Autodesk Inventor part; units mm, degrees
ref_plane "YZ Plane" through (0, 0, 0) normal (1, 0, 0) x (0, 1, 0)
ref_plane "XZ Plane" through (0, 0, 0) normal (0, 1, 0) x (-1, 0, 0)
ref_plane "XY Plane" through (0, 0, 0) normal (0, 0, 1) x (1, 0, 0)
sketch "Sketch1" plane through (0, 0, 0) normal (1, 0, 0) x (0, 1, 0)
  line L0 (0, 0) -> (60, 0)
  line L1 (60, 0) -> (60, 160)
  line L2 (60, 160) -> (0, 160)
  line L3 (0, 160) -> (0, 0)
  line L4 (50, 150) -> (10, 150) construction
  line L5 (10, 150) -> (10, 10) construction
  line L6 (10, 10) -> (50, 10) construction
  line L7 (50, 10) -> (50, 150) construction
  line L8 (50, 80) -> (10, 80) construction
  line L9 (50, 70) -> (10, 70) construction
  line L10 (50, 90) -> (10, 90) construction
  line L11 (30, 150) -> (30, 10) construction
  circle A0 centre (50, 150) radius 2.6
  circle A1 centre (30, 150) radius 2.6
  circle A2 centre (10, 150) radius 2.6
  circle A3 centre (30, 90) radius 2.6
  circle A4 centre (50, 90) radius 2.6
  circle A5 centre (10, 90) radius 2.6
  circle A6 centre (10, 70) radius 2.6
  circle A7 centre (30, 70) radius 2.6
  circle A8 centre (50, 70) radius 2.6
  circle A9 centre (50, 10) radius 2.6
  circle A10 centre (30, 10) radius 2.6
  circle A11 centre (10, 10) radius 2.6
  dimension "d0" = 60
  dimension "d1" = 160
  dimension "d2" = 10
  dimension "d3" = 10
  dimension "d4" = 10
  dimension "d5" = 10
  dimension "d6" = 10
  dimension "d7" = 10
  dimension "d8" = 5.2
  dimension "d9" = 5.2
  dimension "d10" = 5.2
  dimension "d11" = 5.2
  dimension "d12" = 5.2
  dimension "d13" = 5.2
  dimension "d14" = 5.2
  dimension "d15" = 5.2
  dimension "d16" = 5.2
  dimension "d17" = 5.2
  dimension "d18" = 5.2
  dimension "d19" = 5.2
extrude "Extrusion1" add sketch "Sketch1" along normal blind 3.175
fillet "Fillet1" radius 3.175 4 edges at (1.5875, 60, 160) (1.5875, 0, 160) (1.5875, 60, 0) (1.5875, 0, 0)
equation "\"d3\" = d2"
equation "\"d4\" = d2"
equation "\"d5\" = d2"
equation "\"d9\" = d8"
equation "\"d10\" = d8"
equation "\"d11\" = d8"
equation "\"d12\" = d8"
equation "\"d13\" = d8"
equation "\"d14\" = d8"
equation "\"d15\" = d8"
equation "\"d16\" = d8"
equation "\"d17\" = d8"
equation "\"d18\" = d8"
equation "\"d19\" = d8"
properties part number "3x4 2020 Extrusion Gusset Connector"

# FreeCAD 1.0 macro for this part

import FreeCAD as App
import Part
import Sketcher
Q = App.Units.Quantity


def edges_at(feature, points):
    """Names of the edges that pass closest to the given points."""
    edges = feature.Shape.Edges
    near = lambda p: min(range(len(edges)), key=lambda i: edges[i].distToShape(Part.Vertex(*p))[0])
    return sorted({f"Edge{near(p) + 1}" for p in points})


def add_polygon(sketch, points):
    """Adds a closed chain of lines whose ends are joined by coincident constraints."""
    first, n = sketch.GeometryCount, len(points)
    for a, b in zip(points, points[1:] + points[:1]):
        sketch.addGeometry(Part.LineSegment(App.Vector(*a, 0), App.Vector(*b, 0)), False)
    for i in range(n):
        sketch.addConstraint(Sketcher.Constraint("Coincident", first + i, 2, first + (i + 1) % n, 1))

doc = App.newDocument("Part")
body = doc.addObject("PartDesign::Body", "Body")

sketch1 = doc.addObject("Sketcher::SketchObject", "Sketch")
body.addObject(sketch1)
sketch1.AttachmentSupport = (doc.YZ_Plane, [""])
sketch1.MapMode = "FlatFace"
add_polygon(sketch1, [(0, 160), (0, 0), (60, 0), (60, 160)])
sketch1.addGeometry(Part.Circle(App.Vector(10, 10, 0), App.Vector(0, 0, 1), 2.6), False)
sketch1.addGeometry(Part.Circle(App.Vector(10, 70, 0), App.Vector(0, 0, 1), 2.6), False)
sketch1.addGeometry(Part.Circle(App.Vector(30, 10, 0), App.Vector(0, 0, 1), 2.6), False)
sketch1.addGeometry(Part.Circle(App.Vector(50, 10, 0), App.Vector(0, 0, 1), 2.6), False)
sketch1.addGeometry(Part.Circle(App.Vector(30, 70, 0), App.Vector(0, 0, 1), 2.6), False)
sketch1.addGeometry(Part.Circle(App.Vector(50, 70, 0), App.Vector(0, 0, 1), 2.6), False)
sketch1.addGeometry(Part.Circle(App.Vector(10, 90, 0), App.Vector(0, 0, 1), 2.6), False)
sketch1.addGeometry(Part.Circle(App.Vector(10, 150, 0), App.Vector(0, 0, 1), 2.6), False)
sketch1.addGeometry(Part.Circle(App.Vector(30, 90, 0), App.Vector(0, 0, 1), 2.6), False)
sketch1.addGeometry(Part.Circle(App.Vector(50, 90, 0), App.Vector(0, 0, 1), 2.6), False)
sketch1.addGeometry(Part.Circle(App.Vector(30, 150, 0), App.Vector(0, 0, 1), 2.6), False)
sketch1.addGeometry(Part.Circle(App.Vector(50, 150, 0), App.Vector(0, 0, 1), 2.6), False)
sketch1.addConstraint([
    Sketcher.Constraint("Vertical", 0),
    Sketcher.Constraint("Horizontal", 1),
    Sketcher.Constraint("Vertical", 2),
    Sketcher.Constraint("Horizontal", 3),
    Sketcher.Constraint("Coincident", 0, 2, -1, 1),
    Sketcher.Constraint("Equal", 4, 5),
    Sketcher.Constraint("Equal", 5, 6),
    Sketcher.Constraint("Equal", 6, 7),
    Sketcher.Constraint("Equal", 7, 8),
    Sketcher.Constraint("Equal", 8, 9),
    Sketcher.Constraint("Equal", 9, 10),
    Sketcher.Constraint("Equal", 10, 11),
    Sketcher.Constraint("Equal", 11, 12),
    Sketcher.Constraint("Equal", 12, 13),
    Sketcher.Constraint("Equal", 13, 14),
    Sketcher.Constraint("Equal", 14, 15),
    Sketcher.Constraint("Horizontal", 4, 3, 6, 3),
    Sketcher.Constraint("Horizontal", 6, 3, 7, 3),
    Sketcher.Constraint("Horizontal", 5, 3, 8, 3),
    Sketcher.Constraint("Horizontal", 8, 3, 9, 3),
    Sketcher.Constraint("Horizontal", 10, 3, 12, 3),
    Sketcher.Constraint("Horizontal", 12, 3, 13, 3),
    Sketcher.Constraint("Horizontal", 11, 3, 14, 3),
    Sketcher.Constraint("Horizontal", 14, 3, 15, 3),
    Sketcher.Constraint("Vertical", 4, 3, 5, 3),
    Sketcher.Constraint("Vertical", 6, 3, 8, 3),
    Sketcher.Constraint("Vertical", 7, 3, 9, 3),
    Sketcher.Constraint("Vertical", 5, 3, 10, 3),
    Sketcher.Constraint("Vertical", 10, 3, 11, 3),
    Sketcher.Constraint("Vertical", 8, 3, 12, 3),
    Sketcher.Constraint("Vertical", 9, 3, 13, 3),
    Sketcher.Constraint("Vertical", 12, 3, 14, 3),
    Sketcher.Constraint("Vertical", 13, 3, 15, 3),
    Sketcher.Constraint("Diameter", 4, Q("5.2 mm")),
    Sketcher.Constraint("DistanceX", 1, 1, 1, 2, Q("60 mm")),
    Sketcher.Constraint("DistanceY", 0, 2, 0, 1, Q("160 mm")),
    Sketcher.Constraint("DistanceX", -1, 1, 4, 3, Q("10 mm")),
    Sketcher.Constraint("DistanceY", -1, 1, 4, 3, Q("10 mm")),
    Sketcher.Constraint("DistanceY", 4, 3, 5, 3, Q("60 mm")),
    Sketcher.Constraint("DistanceY", 10, 3, 11, 3, Q("60 mm")),
    Sketcher.Constraint("DistanceX", 7, 3, 1, 2, Q("10 mm")),
    Sketcher.Constraint("DistanceY", 15, 3, 2, 2, Q("10 mm")),
    Sketcher.Constraint("DistanceX", -1, 1, 6, 3, Q("30 mm")),
])
pad1 = doc.addObject("PartDesign::Pad", "Pad")
body.addObject(pad1)
pad1.Profile = sketch1
pad1.Length = 3.175
doc.recompute()

fillet = doc.addObject("PartDesign::Fillet", "Fillet")
body.addObject(fillet)
fillet.Base = (pad1, edges_at(pad1, [
    (1.587, 60, 160),
    (1.587, 0, 160),
    (1.587, 60, 0),
    (1.587, 0, 0),
]))
fillet.Radius = 3.175

doc.recompute()
